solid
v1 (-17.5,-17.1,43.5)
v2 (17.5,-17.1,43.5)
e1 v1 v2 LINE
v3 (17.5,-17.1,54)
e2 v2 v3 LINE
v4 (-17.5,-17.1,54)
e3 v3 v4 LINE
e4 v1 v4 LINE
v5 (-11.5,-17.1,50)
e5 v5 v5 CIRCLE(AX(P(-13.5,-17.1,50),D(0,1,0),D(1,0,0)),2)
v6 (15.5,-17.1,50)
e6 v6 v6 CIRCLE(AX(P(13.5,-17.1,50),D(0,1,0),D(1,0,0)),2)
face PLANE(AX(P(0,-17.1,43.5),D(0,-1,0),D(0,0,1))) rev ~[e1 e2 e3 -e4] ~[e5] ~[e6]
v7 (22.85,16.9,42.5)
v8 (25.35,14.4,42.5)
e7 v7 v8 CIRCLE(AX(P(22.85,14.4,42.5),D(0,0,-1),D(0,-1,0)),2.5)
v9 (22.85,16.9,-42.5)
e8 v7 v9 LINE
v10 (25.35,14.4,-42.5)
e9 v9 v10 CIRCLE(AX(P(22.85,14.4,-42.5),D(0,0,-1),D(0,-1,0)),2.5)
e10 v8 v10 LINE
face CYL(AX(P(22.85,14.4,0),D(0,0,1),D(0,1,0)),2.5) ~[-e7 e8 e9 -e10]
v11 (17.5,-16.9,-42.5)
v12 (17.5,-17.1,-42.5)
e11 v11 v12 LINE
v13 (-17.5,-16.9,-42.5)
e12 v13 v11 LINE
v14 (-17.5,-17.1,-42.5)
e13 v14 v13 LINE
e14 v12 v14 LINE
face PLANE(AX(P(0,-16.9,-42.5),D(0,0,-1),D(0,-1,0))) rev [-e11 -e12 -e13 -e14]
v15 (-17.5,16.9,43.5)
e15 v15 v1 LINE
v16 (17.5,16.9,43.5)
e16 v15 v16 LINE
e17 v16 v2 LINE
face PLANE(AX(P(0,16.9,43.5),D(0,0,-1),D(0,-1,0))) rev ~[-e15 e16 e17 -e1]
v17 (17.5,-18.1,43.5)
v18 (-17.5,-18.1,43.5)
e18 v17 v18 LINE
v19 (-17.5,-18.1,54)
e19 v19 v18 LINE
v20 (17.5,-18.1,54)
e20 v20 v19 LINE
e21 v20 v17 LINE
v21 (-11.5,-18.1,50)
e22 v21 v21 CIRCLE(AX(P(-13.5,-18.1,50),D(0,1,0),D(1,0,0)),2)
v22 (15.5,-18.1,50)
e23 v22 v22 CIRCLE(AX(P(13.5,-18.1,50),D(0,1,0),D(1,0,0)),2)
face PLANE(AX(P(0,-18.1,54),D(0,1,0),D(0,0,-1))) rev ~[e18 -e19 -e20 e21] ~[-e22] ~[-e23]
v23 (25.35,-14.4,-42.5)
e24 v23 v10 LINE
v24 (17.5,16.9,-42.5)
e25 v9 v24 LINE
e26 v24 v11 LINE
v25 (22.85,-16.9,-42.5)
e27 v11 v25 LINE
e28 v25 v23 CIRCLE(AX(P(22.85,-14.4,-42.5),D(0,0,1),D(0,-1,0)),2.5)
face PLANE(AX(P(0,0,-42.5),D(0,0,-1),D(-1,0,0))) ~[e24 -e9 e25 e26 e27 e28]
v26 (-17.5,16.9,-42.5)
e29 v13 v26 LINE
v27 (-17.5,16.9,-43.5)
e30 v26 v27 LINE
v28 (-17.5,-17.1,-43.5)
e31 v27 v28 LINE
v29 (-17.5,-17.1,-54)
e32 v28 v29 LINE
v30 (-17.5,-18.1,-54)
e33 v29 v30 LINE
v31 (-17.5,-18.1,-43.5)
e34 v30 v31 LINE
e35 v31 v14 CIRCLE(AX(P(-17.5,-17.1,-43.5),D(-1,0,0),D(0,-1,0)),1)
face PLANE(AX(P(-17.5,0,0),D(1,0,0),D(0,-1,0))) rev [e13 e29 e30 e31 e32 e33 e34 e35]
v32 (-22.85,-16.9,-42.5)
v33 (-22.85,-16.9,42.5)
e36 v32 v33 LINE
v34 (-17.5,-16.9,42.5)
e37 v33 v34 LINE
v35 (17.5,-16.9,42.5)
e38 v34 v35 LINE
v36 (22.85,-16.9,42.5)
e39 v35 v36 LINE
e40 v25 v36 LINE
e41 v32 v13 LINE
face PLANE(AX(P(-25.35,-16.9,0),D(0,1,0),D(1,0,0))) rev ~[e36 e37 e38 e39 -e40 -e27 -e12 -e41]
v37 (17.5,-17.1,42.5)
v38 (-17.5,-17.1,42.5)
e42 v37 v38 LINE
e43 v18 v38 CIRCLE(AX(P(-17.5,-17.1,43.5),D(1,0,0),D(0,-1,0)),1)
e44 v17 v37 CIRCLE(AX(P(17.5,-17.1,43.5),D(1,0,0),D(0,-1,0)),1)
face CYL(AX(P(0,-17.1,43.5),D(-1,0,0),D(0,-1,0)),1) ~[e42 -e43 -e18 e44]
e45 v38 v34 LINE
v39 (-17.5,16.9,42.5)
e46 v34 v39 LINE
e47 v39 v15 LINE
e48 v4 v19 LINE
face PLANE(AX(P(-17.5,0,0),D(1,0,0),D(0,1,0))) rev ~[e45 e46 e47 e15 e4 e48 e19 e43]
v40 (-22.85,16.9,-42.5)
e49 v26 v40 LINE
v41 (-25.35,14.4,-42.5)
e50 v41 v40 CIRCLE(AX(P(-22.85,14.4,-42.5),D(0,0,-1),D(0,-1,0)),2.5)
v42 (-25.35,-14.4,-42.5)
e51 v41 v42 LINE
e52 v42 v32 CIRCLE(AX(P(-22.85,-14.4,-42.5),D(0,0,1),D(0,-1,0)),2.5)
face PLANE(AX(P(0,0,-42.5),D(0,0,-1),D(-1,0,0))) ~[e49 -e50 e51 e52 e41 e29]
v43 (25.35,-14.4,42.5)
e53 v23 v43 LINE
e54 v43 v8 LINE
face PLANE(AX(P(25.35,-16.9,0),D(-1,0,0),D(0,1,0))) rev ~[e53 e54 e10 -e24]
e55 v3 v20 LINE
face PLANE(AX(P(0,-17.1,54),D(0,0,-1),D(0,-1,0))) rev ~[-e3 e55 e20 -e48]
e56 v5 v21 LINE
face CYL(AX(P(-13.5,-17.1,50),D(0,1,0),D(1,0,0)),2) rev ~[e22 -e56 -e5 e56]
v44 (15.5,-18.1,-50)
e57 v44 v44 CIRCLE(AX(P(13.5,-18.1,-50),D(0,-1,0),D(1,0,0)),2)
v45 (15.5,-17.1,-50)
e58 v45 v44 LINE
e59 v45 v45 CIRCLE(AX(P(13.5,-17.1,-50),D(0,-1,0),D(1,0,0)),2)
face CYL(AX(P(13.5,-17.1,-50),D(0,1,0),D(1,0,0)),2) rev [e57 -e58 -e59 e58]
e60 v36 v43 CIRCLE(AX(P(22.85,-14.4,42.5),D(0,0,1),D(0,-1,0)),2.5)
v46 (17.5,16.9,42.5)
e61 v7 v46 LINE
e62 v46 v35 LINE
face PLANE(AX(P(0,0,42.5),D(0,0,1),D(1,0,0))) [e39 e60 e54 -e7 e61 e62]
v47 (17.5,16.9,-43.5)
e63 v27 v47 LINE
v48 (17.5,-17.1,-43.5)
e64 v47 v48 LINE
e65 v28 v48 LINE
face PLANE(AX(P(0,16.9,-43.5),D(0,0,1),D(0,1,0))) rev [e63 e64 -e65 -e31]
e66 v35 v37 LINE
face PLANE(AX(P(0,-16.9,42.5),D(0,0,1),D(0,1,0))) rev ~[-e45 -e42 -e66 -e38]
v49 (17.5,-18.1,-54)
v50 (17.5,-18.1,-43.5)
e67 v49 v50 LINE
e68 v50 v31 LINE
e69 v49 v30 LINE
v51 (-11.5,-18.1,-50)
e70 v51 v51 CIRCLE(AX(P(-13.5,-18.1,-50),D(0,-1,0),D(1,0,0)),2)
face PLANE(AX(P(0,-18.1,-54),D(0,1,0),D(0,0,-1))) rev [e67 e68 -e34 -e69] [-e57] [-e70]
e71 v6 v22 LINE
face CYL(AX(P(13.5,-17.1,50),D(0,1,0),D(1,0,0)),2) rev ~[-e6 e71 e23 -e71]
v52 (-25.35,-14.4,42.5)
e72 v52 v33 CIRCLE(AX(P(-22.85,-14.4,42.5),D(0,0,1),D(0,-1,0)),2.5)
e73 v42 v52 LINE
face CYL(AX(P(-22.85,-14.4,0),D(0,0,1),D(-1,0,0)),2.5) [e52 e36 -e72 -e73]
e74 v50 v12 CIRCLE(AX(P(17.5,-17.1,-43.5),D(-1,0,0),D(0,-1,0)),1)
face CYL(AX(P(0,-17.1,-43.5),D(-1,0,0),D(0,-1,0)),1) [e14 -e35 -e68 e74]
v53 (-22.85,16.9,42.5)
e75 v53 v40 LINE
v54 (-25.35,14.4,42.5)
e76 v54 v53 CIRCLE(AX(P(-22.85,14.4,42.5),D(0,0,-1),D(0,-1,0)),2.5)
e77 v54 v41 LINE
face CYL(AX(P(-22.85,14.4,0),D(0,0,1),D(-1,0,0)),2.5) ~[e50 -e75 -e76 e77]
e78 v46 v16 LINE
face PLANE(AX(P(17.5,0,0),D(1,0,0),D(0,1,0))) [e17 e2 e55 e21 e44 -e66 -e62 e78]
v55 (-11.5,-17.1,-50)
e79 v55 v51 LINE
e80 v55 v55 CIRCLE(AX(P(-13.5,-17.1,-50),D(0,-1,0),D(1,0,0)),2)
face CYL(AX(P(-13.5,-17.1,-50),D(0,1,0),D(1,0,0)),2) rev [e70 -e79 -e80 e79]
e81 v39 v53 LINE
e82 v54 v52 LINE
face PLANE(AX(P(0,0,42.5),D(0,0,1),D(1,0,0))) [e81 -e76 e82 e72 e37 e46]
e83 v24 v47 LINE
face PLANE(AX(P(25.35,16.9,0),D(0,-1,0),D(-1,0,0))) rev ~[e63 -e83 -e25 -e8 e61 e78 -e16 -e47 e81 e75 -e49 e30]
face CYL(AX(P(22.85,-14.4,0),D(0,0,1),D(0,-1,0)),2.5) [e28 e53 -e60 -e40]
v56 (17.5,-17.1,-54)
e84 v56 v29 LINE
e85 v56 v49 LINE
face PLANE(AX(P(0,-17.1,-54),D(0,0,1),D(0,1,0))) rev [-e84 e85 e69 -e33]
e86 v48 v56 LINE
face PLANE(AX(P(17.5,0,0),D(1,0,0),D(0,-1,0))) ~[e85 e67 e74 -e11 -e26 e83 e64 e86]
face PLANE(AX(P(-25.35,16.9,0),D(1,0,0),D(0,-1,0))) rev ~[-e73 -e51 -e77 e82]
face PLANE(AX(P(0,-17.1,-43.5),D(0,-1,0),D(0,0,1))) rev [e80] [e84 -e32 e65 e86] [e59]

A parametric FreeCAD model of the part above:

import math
import FreeCAD as App
import Part
import Sketcher
from FreeCAD import Vector
Q = App.Units.Quantity


def edges_at(feature, points):
    """Names of the edges that pass closest to the given points."""
    edges = feature.Shape.Edges
    near = lambda p: min(range(len(edges)), key=lambda i: edges[i].distToShape(Part.Vertex(*p))[0])
    return sorted({f"Edge{near(p) + 1}" for p in points})

doc = App.newDocument("Part")
params = doc.addObject("Spreadsheet::Sheet", "Params")
for row, (alias, value) in enumerate([
    ("sketch1_width", "50.7 mm"),
    ("sketch1_height", "33.8 mm"),
    ("pad1_length", "42.5 mm"),
    ("sketch2_radius", "1 mm"),
    ("sketch2_height", "10.5 mm"),
    ("pad2_length", "35 mm"),
    ("fillet_radius", "2.5 mm"),
    ("sketch3_diameter", "4 mm"),
], start=1):
    params.set(f"A{row}", alias)
    params.set(f"B{row}", "=" + value)
    params.setAlias(f"B{row}", alias)

body = doc.addObject("PartDesign::Body", "Body")

sketch1 = body.newObject("Sketcher::SketchObject", "Sketch")
sketch1.AttachmentSupport = (doc.getObject("XY_Plane"), [""])
sketch1.MapMode = "FlatFace"
sketch1.addGeometry([
    Part.LineSegment(Vector(-25, 17, 0), Vector(-25, -17, 0)),
    Part.LineSegment(Vector(-25, -17, 0), Vector(25, -17, 0)),
    Part.LineSegment(Vector(25, -17, 0), Vector(25, 17, 0)),
    Part.LineSegment(Vector(25, 17, 0), Vector(-25, 17, 0)),
], False)
sketch1.addConstraint([
    Sketcher.Constraint("Coincident", 0, 2, 1, 1),
    Sketcher.Constraint("Coincident", 1, 2, 2, 1),
    Sketcher.Constraint("Coincident", 2, 2, 3, 1),
    Sketcher.Constraint("Coincident", 3, 2, 0, 1),
    Sketcher.Constraint("Vertical", 0),
    Sketcher.Constraint("Horizontal", 1),
    Sketcher.Constraint("Vertical", 2),
    Sketcher.Constraint("Horizontal", 3),
    Sketcher.Constraint("Symmetric", 0, 2, 2, 2, -1, 1),
    Sketcher.Constraint("DistanceX", 1, 1, 1, 2, Q("50.7 mm")),
    Sketcher.Constraint("DistanceY", 0, 2, 0, 1, Q("33.8 mm")),
])
sketch1.setExpression("Constraints[9]", "Params.sketch1_width")
sketch1.setExpression("Constraints[10]", "Params.sketch1_height")
pad1 = body.newObject("PartDesign::Pad", "Pad")
pad1.Profile = sketch1
pad1.setExpression("Length", "Params.pad1_length")

sketch2 = body.newObject("Sketcher::SketchObject", "Sketch001")
sketch2.AttachmentSupport = (doc.getObject("YZ_Plane"), [""])
sketch2.MapMode = "FlatFace"
sketch2.addGeometry([
    Part.LineSegment(Vector(-17.1, 42.5, 0), Vector(16.9, 42.5, 0)),
    Part.LineSegment(Vector(16.9, 42.5, 0), Vector(16.9, 43.5, 0)),
    Part.LineSegment(Vector(16.9, 43.5, 0), Vector(-17.1, 43.5, 0)),
    Part.LineSegment(Vector(-17.1, 43.5, 0), Vector(-17.1, 54, 0)),
    Part.LineSegment(Vector(-17.1, 54, 0), Vector(-18.1, 54, 0)),
    Part.LineSegment(Vector(-18.1, 54, 0), Vector(-18.1, 43.5, 0)),
    Part.ArcOfCircle(Part.Circle(Vector(-17.1, 43.5, 0), Vector(0, 0, 1), 1), math.radians(180), math.radians(270)),
], False)
sketch2.addConstraint([
    Sketcher.Constraint("Coincident", 0, 2, 1, 1),
    Sketcher.Constraint("Coincident", 1, 2, 2, 1),
    Sketcher.Constraint("Coincident", 2, 2, 3, 1),
    Sketcher.Constraint("Coincident", 3, 2, 4, 1),
    Sketcher.Constraint("Coincident", 4, 2, 5, 1),
    Sketcher.Constraint("Tangent", 5, 2, 6, 1),
    Sketcher.Constraint("Tangent", 6, 2, 0, 1),
    Sketcher.Constraint("Horizontal", 0),
    Sketcher.Constraint("Vertical", 1),
    Sketcher.Constraint("Horizontal", 2),
    Sketcher.Constraint("Vertical", 3),
    Sketcher.Constraint("Horizontal", 4),
    Sketcher.Constraint("Vertical", 5),
    Sketcher.Constraint("Coincident", 2, 2, 6, 3),
    Sketcher.Constraint("Radius", 6, Q("1 mm")),
    Sketcher.Constraint("DistanceY", -1, 1, 3, 2, Q("54 mm")),
    Sketcher.Constraint("DistanceX", 4, 2, 1, 2, Q("35 mm")),
    Sketcher.Constraint("DistanceY", 3, 1, 3, 2, Q("10.5 mm")),
    Sketcher.Constraint("DistanceX", 6, 3, -1, 1, Q("17.1 mm")),
])
sketch2.setExpression("Constraints[14]", "Params.sketch2_radius")
sketch2.setExpression("Constraints[17]", "Params.sketch2_height")
pad2 = body.newObject("PartDesign::Pad", "Pad001")
pad2.Profile = sketch2
pad2.setExpression("Length", "Params.pad2_length")
pad2.Midplane = True
doc.recompute()

fillet = body.newObject("PartDesign::Fillet", "Fillet")
fillet.Base = (pad2, edges_at(pad2, [
    (25.35, -16.9, 21.25),
    (25.35, 16.9, 21.25),
    (-25.35, 16.9, 21.25),
    (-25.35, -16.9, 21.25),
]))
fillet.setExpression("Radius", "Params.fillet_radius")

sketch3 = body.newObject("Sketcher::SketchObject", "Sketch002")
sketch3.AttachmentSupport = (doc.getObject("XZ_Plane"), [""])
sketch3.MapMode = "FlatFace"
sketch3.AttachmentOffset = App.Placement(Vector(0, 0, 17.1), App.Rotation())
sketch3.addGeometry([
    Part.Circle(Vector(-13.5, 50, 0), Vector(0, 0, 1), 2),
    Part.Circle(Vector(13.5, 50, 0), Vector(0, 0, 1), 2),
], False)
sketch3.addConstraint([
    Sketcher.Constraint("Equal", 0, 1),
    Sketcher.Constraint("Symmetric", 0, 3, 1, 3, -2),
    Sketcher.Constraint("Diameter", 0, Q("4 mm")),
    Sketcher.Constraint("DistanceY", -1, 1, 0, 3, Q("50 mm")),
    Sketcher.Constraint("DistanceX", 0, 3, 1, 3, Q("27 mm")),
])
sketch3.setExpression("Constraints[2]", "Params.sketch3_diameter")
pocket1 = body.newObject("PartDesign::Pocket", "Pocket")
pocket1.Profile = sketch3
pocket1.Type = "ThroughAll"
pocket1.Reversed = True
doc.recompute()

mirrored = body.newObject("PartDesign::Mirrored", "Mirrored")
mirrored.TransformMode = "Transform body"
mirrored.MirrorPlane = (doc.getObject("XY_Plane"), [""])
body.Tip = mirrored

doc.recompute()
